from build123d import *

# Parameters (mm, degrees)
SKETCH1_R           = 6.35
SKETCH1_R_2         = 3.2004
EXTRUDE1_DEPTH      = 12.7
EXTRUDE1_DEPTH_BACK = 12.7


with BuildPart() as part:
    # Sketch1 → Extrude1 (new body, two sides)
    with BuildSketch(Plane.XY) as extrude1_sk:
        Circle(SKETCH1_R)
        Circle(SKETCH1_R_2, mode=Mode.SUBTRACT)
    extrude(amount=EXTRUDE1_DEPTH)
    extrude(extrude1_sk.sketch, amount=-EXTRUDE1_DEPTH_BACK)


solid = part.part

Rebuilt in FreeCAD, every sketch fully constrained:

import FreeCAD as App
import Part
import Sketcher
from FreeCAD import Vector
Q = App.Units.Quantity

doc = App.newDocument("Part")
params = doc.addObject("Spreadsheet::Sheet", "Params")
for row, (alias, value) in enumerate([
    ("sketch1_diameter", "0.5 in"),
    ("sketch1_diameter2", "0.252 in"),
    ("pad1_length", "0.5 in"),
    ("pad1_length2", "0.5 in"),
], start=1):
    params.set(f"A{row}", alias)
    params.set(f"B{row}", "=" + value)
    params.setAlias(f"B{row}", alias)

body = doc.addObject("PartDesign::Body", "Body")

# Sketch on XY plane
sketch1 = body.newObject("Sketcher::SketchObject", "Sketch")
sketch1.AttachmentSupport = (doc.getObject("XY_Plane"), [""])
sketch1.MapMode = "FlatFace"
sketch1.addGeometry(Part.Circle(Vector(0, 0, 0), Vector(0, 0, 1), 6.35), False)
sketch1.addGeometry(Part.Circle(Vector(0, 0, 0), Vector(0, 0, 1), 3.2004), False)
sketch1.addConstraint(Sketcher.Constraint("Coincident", 0, 3, -1, 1))
sketch1.addConstraint(Sketcher.Constraint("Coincident", 1, 3, -1, 1))
sketch1.addConstraint(Sketcher.Constraint("Diameter", 0, Q("0.5 in")))
sketch1.addConstraint(Sketcher.Constraint("Diameter", 1, Q("0.252 in")))
sketch1.setExpression("Constraints[2]", "Params.sketch1_diameter")
sketch1.setExpression("Constraints[3]", "Params.sketch1_diameter2")
pad1 = body.newObject("PartDesign::Pad", "Pad")
pad1.Profile = sketch1
pad1.Type = "TwoLengths"
pad1.setExpression("Length", "Params.pad1_length")
pad1.setExpression("Length2", "Params.pad1_length2")

doc.recompute()
